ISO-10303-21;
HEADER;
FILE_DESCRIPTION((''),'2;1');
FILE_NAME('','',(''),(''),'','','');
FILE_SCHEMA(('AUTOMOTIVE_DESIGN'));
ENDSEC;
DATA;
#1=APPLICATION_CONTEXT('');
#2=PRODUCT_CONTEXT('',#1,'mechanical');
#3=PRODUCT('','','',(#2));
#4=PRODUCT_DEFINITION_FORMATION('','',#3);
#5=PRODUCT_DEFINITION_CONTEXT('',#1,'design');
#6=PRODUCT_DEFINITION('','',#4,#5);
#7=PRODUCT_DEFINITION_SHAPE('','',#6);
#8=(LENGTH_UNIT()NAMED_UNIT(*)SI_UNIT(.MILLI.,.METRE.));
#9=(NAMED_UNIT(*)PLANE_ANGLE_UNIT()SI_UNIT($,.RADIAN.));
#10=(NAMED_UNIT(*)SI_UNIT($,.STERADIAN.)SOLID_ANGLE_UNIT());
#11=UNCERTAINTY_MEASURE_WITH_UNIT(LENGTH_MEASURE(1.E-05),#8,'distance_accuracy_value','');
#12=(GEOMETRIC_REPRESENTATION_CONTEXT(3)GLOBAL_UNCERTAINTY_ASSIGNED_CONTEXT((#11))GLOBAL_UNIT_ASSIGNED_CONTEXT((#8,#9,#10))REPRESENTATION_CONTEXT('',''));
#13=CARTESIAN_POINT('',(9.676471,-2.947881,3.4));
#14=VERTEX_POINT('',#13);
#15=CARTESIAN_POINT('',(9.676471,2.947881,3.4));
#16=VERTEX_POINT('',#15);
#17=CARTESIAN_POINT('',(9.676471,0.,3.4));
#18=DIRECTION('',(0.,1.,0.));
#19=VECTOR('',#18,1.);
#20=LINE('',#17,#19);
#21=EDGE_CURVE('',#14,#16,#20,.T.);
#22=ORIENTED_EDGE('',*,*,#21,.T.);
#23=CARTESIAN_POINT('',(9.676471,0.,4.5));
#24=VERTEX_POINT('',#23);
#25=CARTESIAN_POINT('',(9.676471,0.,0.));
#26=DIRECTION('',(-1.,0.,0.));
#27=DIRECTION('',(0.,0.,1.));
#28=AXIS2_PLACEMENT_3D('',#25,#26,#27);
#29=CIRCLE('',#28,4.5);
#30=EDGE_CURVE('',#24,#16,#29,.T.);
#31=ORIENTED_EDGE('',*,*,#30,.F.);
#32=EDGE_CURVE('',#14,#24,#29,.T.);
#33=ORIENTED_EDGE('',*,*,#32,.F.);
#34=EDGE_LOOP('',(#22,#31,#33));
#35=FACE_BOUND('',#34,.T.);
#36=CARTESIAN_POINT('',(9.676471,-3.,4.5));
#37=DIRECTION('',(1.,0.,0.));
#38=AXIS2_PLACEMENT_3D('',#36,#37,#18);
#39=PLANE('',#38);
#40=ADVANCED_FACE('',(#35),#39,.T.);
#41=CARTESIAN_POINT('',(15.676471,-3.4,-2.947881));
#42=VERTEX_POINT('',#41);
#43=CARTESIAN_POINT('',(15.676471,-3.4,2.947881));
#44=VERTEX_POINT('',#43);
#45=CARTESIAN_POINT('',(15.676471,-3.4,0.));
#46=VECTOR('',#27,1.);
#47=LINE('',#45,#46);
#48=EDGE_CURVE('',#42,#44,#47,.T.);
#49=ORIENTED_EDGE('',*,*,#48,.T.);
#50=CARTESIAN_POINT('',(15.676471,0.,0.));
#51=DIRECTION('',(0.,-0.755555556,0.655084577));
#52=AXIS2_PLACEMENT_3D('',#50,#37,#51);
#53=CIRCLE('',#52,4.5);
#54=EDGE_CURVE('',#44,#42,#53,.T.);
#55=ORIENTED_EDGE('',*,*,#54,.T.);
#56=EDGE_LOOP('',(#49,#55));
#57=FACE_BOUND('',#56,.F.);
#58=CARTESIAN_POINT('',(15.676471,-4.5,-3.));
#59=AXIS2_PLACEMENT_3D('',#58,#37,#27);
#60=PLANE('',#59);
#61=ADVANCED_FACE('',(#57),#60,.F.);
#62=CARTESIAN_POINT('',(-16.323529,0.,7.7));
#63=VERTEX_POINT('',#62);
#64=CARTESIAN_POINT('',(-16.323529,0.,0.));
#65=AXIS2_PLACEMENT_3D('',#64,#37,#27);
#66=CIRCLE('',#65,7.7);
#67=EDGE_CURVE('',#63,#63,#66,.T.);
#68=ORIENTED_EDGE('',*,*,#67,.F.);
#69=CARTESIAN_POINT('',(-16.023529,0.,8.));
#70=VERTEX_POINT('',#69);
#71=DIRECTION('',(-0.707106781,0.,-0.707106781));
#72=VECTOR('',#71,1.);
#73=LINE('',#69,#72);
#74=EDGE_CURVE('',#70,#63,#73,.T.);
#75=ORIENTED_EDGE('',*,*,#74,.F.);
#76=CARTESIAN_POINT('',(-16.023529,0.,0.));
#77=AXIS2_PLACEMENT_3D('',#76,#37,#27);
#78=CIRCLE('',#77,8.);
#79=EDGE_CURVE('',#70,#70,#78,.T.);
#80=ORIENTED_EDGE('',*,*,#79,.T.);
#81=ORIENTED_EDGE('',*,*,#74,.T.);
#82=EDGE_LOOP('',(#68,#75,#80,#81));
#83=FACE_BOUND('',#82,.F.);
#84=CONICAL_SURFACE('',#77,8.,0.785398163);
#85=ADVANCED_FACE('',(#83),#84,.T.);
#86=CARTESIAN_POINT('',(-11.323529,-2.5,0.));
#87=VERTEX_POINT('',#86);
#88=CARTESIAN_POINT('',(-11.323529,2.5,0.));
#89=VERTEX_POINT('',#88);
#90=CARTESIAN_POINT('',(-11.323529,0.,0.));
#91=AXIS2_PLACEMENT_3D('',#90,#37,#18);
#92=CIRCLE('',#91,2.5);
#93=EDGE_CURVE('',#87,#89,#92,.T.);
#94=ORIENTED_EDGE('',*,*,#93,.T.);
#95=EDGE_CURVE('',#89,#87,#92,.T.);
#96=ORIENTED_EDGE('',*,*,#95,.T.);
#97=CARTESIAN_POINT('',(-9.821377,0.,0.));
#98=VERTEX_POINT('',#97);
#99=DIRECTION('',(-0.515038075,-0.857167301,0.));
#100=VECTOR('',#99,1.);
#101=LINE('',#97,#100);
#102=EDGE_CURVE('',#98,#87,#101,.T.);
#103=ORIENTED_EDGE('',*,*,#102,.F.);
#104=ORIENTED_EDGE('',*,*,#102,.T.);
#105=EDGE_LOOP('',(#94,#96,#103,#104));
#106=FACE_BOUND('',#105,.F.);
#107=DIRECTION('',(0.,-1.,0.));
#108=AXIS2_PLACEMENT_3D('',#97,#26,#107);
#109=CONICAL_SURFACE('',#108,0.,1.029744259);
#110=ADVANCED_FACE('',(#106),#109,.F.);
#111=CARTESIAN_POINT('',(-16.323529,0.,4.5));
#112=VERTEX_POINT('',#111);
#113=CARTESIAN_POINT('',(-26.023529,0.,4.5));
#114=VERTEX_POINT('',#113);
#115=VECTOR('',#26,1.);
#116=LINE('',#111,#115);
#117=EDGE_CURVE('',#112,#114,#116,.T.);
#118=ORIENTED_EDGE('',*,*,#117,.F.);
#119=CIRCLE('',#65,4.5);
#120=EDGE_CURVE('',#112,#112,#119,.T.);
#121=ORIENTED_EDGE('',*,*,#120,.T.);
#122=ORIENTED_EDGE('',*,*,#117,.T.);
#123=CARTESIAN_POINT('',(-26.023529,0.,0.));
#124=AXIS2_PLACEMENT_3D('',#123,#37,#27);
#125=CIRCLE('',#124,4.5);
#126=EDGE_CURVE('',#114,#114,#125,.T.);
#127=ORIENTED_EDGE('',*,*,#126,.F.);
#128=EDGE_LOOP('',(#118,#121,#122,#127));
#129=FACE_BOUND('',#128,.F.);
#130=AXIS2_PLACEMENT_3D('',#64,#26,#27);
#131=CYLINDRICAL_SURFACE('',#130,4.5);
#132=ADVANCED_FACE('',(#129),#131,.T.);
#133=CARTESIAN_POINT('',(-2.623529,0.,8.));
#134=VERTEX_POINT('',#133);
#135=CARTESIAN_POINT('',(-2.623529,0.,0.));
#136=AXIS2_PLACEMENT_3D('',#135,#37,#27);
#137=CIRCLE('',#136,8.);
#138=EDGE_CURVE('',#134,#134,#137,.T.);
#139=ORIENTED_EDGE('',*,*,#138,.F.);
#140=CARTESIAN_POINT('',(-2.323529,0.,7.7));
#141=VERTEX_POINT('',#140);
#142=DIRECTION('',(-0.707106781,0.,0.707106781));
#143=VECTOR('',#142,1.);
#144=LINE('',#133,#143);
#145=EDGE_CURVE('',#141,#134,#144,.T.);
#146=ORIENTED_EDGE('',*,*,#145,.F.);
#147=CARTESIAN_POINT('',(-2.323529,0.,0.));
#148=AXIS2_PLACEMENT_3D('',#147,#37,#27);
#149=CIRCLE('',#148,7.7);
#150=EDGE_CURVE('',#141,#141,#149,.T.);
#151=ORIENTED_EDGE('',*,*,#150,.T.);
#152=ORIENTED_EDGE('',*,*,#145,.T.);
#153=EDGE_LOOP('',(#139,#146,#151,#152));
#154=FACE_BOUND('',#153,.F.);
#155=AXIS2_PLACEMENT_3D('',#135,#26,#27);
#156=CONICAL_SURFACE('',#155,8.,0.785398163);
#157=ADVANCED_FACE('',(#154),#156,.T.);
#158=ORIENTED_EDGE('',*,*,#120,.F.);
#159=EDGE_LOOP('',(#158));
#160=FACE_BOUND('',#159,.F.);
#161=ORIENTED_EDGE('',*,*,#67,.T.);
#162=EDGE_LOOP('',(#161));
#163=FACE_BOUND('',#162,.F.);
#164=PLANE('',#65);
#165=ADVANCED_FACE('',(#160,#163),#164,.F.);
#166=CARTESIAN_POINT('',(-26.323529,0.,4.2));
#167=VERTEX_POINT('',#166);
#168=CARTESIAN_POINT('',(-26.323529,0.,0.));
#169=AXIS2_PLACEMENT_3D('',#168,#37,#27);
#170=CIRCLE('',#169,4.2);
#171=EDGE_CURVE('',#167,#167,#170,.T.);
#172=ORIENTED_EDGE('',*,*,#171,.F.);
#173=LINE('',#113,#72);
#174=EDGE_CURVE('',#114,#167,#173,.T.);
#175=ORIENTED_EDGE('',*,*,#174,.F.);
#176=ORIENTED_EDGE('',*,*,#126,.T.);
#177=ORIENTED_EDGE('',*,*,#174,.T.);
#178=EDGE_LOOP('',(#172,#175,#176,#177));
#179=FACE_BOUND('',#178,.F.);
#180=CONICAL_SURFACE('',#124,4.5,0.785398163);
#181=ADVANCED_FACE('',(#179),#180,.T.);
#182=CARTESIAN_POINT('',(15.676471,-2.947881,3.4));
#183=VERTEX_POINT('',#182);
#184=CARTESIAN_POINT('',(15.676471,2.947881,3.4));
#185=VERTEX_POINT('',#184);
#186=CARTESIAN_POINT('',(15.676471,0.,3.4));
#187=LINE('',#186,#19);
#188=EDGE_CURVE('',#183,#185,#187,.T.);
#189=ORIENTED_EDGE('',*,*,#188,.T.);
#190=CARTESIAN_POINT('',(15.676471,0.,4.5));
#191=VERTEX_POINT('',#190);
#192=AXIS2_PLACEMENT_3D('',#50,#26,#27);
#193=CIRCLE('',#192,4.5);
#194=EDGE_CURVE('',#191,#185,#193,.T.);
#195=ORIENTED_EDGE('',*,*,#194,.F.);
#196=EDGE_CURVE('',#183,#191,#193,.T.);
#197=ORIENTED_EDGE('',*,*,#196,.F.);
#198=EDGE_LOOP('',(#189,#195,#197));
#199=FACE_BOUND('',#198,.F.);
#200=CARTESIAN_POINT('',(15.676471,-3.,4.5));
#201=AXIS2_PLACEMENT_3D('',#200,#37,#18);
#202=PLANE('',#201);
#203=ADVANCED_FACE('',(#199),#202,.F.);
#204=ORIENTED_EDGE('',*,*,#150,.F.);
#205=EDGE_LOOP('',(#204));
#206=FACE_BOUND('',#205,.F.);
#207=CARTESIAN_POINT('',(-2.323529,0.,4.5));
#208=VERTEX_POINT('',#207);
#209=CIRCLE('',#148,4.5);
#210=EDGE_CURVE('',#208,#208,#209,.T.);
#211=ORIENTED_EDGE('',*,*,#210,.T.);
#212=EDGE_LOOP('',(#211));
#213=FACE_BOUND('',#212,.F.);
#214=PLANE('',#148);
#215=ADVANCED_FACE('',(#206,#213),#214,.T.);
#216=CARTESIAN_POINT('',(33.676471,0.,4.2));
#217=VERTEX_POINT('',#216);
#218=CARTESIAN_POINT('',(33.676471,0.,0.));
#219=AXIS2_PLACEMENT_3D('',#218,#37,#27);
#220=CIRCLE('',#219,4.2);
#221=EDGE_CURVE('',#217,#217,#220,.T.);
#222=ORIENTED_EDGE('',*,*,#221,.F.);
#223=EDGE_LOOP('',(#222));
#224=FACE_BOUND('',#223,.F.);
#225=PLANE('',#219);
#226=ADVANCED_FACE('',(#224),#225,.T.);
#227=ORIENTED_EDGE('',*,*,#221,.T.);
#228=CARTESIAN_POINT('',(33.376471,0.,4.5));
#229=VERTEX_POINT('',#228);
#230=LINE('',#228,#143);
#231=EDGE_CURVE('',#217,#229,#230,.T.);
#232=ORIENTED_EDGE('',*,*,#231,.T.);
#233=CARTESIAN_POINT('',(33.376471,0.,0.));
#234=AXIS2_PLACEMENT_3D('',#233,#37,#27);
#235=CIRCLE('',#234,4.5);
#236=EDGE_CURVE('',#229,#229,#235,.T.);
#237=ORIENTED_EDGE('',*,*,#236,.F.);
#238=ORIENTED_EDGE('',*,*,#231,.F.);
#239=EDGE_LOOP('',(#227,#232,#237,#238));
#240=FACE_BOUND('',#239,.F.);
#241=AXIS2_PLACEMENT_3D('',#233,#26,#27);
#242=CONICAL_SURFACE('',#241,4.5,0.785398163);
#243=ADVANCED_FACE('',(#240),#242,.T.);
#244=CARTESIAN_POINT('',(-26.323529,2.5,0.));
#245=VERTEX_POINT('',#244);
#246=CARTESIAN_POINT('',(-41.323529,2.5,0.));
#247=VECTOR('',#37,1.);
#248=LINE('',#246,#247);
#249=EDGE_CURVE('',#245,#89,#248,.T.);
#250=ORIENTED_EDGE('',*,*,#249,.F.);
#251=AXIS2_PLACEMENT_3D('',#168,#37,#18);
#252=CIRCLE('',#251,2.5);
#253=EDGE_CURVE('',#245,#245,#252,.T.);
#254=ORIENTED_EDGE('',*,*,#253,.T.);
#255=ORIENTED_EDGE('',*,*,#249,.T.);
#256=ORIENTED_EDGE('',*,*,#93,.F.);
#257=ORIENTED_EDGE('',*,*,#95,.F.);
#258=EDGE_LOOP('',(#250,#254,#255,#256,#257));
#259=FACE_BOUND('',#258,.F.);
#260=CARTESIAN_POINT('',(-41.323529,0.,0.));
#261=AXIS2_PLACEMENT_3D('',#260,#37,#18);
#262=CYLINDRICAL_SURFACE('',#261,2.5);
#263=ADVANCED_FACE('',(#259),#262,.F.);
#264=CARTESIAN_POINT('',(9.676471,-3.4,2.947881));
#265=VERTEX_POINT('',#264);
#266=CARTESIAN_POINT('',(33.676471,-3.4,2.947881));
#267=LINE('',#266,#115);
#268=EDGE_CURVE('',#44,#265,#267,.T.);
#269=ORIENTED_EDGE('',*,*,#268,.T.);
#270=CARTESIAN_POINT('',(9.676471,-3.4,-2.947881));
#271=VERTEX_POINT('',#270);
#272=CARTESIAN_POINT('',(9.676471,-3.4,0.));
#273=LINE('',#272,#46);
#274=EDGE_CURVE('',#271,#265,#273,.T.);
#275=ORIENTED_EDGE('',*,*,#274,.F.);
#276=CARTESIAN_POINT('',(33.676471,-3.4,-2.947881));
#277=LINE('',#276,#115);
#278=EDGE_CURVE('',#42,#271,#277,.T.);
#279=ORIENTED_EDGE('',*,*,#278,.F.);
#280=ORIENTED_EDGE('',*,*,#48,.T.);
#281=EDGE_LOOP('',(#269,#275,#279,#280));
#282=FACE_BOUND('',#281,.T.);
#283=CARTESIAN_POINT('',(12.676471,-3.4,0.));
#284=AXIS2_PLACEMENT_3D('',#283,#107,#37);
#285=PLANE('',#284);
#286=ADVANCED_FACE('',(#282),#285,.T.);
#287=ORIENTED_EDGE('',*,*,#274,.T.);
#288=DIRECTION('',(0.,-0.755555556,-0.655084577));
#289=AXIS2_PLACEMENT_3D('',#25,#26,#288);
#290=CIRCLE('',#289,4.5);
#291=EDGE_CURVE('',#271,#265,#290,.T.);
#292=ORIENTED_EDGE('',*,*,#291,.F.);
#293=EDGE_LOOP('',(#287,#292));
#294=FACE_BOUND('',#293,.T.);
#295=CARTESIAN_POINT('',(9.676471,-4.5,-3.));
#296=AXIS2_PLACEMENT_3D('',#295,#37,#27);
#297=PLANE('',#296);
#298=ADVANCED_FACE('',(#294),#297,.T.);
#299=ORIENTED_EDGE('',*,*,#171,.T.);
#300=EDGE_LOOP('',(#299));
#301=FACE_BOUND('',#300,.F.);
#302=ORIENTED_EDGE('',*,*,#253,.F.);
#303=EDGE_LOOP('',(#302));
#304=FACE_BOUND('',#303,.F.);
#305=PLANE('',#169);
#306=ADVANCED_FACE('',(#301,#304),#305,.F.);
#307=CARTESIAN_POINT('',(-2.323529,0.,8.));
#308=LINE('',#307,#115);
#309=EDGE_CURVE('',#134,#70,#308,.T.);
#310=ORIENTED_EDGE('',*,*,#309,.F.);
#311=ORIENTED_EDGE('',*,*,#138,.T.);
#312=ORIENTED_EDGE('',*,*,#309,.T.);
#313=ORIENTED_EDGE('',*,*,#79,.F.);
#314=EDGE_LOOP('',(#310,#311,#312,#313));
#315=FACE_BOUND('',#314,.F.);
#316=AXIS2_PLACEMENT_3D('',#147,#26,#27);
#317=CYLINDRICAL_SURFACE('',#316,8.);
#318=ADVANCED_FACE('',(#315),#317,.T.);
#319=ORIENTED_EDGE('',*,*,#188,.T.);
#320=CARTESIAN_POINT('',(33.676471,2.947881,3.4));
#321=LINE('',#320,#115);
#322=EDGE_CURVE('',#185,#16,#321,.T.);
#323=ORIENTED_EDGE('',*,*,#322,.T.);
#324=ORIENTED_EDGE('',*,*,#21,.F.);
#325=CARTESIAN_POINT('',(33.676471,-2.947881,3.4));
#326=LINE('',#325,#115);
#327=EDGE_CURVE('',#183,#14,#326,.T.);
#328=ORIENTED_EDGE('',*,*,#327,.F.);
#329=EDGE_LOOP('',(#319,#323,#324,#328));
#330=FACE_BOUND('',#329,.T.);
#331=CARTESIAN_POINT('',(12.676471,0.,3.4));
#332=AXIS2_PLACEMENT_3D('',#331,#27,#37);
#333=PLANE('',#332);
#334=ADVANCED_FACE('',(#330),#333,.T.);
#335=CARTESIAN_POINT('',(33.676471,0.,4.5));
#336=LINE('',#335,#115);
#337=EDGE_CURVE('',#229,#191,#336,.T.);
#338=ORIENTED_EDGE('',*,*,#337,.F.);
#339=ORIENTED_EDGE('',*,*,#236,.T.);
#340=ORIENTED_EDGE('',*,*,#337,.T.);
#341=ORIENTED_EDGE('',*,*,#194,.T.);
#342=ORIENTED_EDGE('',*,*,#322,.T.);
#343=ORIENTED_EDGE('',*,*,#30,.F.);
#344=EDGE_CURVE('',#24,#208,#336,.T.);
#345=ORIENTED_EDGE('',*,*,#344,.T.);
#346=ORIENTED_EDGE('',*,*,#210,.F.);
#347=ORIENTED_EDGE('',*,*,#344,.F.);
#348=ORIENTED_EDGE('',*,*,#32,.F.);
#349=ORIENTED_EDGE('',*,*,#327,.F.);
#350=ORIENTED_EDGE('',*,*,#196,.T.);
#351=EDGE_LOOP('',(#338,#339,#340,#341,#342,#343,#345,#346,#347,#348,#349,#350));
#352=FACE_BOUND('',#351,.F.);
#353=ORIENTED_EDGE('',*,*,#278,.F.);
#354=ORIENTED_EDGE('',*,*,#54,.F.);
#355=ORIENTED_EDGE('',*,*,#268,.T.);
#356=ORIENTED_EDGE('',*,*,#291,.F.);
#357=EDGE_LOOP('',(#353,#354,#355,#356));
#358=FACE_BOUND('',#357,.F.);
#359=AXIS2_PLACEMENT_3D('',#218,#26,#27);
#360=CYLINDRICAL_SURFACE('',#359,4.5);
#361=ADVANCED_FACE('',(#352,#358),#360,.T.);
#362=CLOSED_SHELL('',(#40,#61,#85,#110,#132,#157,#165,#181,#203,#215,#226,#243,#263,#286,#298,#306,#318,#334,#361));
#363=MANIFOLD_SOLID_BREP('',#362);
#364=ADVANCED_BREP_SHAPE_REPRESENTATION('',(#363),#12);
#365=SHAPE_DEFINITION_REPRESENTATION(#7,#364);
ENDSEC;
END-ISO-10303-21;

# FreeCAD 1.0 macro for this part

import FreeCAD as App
import Part
import Sketcher

V = App.Vector
Q = App.Units.Quantity


def edges_at(feature, points):
    """Names of the edges that pass closest to the given points."""
    edges = feature.Shape.Edges
    near = lambda p: min(range(len(edges)), key=lambda i: edges[i].distToShape(Part.Vertex(*p))[0])
    return sorted({f"Edge{near(p) + 1}" for p in points})

doc = App.newDocument("Part")
params = doc.addObject("Spreadsheet::Sheet", "Params")
for row, (alias, value) in enumerate([
    ("sketch1_width", "60 mm"),
    ("sketch1_width2", "36 mm"),
    ("sketch1_width3", "14 mm"),
    ("sketch1_height", "4.5 mm"),
    ("sketch1_height2", "3.5 mm"),
    ("revolution_angle", "360 deg"),
    ("chamfer_size", "0.3 mm"),
    ("chamfer2_size", "0.3 mm"),
    ("chamfer3_size", "0.3 mm"),
    ("sketch2_width", "6 mm"),
    ("pocket1_length", "1.1 mm"),
    ("sketch3_width", "6 mm"),
    ("pocket2_length", "1.1 mm"),
    ("sketch4_diameter", "5 mm"),
    ("hole_diameter", "5 mm"),
    ("hole_depth", "15 mm"),
], start=1):
    params.set(f"A{row}", alias)
    params.set(f"B{row}", "=" + value)
    params.setAlias(f"B{row}", alias)

body = doc.addObject("PartDesign::Body", "Body")

sketch1 = body.newObject("Sketcher::SketchObject", "Sketch")
sketch1.AttachmentSupport = (doc.getObject("XZ_Plane"), [""])
sketch1.MapMode = "FlatFace"
sketch1.addGeometry(Part.LineSegment(V(-26.3, 4.5, 0), V(-26.3, 0, 0)), False)
sketch1.addGeometry(Part.LineSegment(V(-26.3, 0, 0), V(33.7, 0, 0)), False)
sketch1.addGeometry(Part.LineSegment(V(33.7, 0, 0), V(33.7, 4.5, 0)), False)
sketch1.addGeometry(Part.LineSegment(V(33.7, 4.5, 0), V(-2.3, 4.5, 0)), False)
sketch1.addGeometry(Part.LineSegment(V(-2.3, 4.5, 0), V(-2.3, 8, 0)), False)
sketch1.addGeometry(Part.LineSegment(V(-2.3, 8, 0), V(-16.3, 8, 0)), False)
sketch1.addGeometry(Part.LineSegment(V(-16.3, 8, 0), V(-16.3, 4.5, 0)), False)
sketch1.addGeometry(Part.LineSegment(V(-16.3, 4.5, 0), V(-26.3, 4.5, 0)), False)
sketch1.addConstraint(Sketcher.Constraint("Coincident", 0, 2, 1, 1))
sketch1.addConstraint(Sketcher.Constraint("Coincident", 1, 2, 2, 1))
sketch1.addConstraint(Sketcher.Constraint("Coincident", 2, 2, 3, 1))
sketch1.addConstraint(Sketcher.Constraint("Coincident", 3, 2, 4, 1))
sketch1.addConstraint(Sketcher.Constraint("Coincident", 4, 2, 5, 1))
sketch1.addConstraint(Sketcher.Constraint("Coincident", 5, 2, 6, 1))
sketch1.addConstraint(Sketcher.Constraint("Coincident", 6, 2, 7, 1))
sketch1.addConstraint(Sketcher.Constraint("Coincident", 7, 2, 0, 1))
sketch1.addConstraint(Sketcher.Constraint("Vertical", 0))
sketch1.addConstraint(Sketcher.Constraint("Horizontal", 1))
sketch1.addConstraint(Sketcher.Constraint("Vertical", 2))
sketch1.addConstraint(Sketcher.Constraint("Horizontal", 3))
sketch1.addConstraint(Sketcher.Constraint("Vertical", 4))
sketch1.addConstraint(Sketcher.Constraint("Horizontal", 5))
sketch1.addConstraint(Sketcher.Constraint("Vertical", 6))
sketch1.addConstraint(Sketcher.Constraint("Horizontal", 7))
sketch1.addConstraint(Sketcher.Constraint("PointOnObject", 0, 2, -1))
sketch1.addConstraint(Sketcher.Constraint("Horizontal", 3, 2, 6, 2))
sketch1.addConstraint(Sketcher.Constraint("DistanceX", 1, 1, 1, 2, Q("60 mm")))
sketch1.addConstraint(Sketcher.Constraint("DistanceX", 3, 2, 3, 1, Q("36 mm")))
sketch1.addConstraint(Sketcher.Constraint("DistanceX", 5, 2, 5, 1, Q("14 mm")))
sketch1.addConstraint(Sketcher.Constraint("DistanceY", 0, 2, 0, 1, Q("4.5 mm")))
sketch1.addConstraint(Sketcher.Constraint("DistanceY", 4, 1, 4, 2, Q("3.5 mm")))
sketch1.addConstraint(Sketcher.Constraint("DistanceX", 0, 2, -1, 1, Q("26.323529 mm")))
sketch1.setExpression("Constraints[18]", "Params.sketch1_width")
sketch1.setExpression("Constraints[19]", "Params.sketch1_width2")
sketch1.setExpression("Constraints[20]", "Params.sketch1_width3")
sketch1.setExpression("Constraints[21]", "Params.sketch1_height")
sketch1.setExpression("Constraints[22]", "Params.sketch1_height2")
revolution = body.newObject("PartDesign::Revolution", "Revolution")
revolution.Profile = sketch1
revolution.ReferenceAxis = (sketch1, ["H_Axis"])
revolution.setExpression("Angle", "Params.revolution_angle")
doc.recompute()

chamfer = body.newObject("PartDesign::Chamfer", "Chamfer")
chamfer.Base = (revolution, edges_at(revolution, [(33.676, 0, -4.5)]))
chamfer.setExpression("Size", "Params.chamfer_size")
doc.recompute()

chamfer2 = body.newObject("PartDesign::Chamfer", "Chamfer001")
chamfer2.Base = (chamfer, edges_at(chamfer, [(-2.324, 0, -8), (-16.324, 0, -8), (-9.324, 0, 8)]))
chamfer2.setExpression("Size", "Params.chamfer2_size")
doc.recompute()

chamfer3 = body.newObject("PartDesign::Chamfer", "Chamfer002")
chamfer3.Base = (chamfer2, edges_at(chamfer2, [(-26.324, 0, -4.5)]))
chamfer3.setExpression("Size", "Params.chamfer3_size")

sketch2 = body.newObject("Sketcher::SketchObject", "Sketch001")
sketch2.AttachmentSupport = (doc.getObject("XZ_Plane"), [""])
sketch2.MapMode = "FlatFace"
sketch2.AttachmentOffset = App.Placement(V(0, 0, 4.5), App.Rotation())
sketch2.addGeometry(Part.LineSegment(V(10, 3, 0), V(10, -3, 0)), False)
sketch2.addGeometry(Part.LineSegment(V(10, -3, 0), V(16, -3, 0)), False)
sketch2.addGeometry(Part.LineSegment(V(16, -3, 0), V(16, 3, 0)), False)
sketch2.addGeometry(Part.LineSegment(V(16, 3, 0), V(10, 3, 0)), False)
sketch2.addConstraint(Sketcher.Constraint("Coincident", 0, 2, 1, 1))
sketch2.addConstraint(Sketcher.Constraint("Coincident", 1, 2, 2, 1))
sketch2.addConstraint(Sketcher.Constraint("Coincident", 2, 2, 3, 1))
sketch2.addConstraint(Sketcher.Constraint("Coincident", 3, 2, 0, 1))
sketch2.addConstraint(Sketcher.Constraint("Vertical", 0))
sketch2.addConstraint(Sketcher.Constraint("Horizontal", 1))
sketch2.addConstraint(Sketcher.Constraint("Vertical", 2))
sketch2.addConstraint(Sketcher.Constraint("Horizontal", 3))
sketch2.addConstraint(Sketcher.Constraint("Equal", 3, 0))
sketch2.addConstraint(Sketcher.Constraint("DistanceX", 1, 1, 1, 2, Q("6 mm")))
sketch2.addConstraint(Sketcher.Constraint("DistanceY", 0, 2, -1, 1, Q("3 mm")))
sketch2.addConstraint(Sketcher.Constraint("DistanceX", -1, 1, 0, 2, Q("9.676471 mm")))
sketch2.setExpression("Constraints[9]", "Params.sketch2_width")
pocket1 = body.newObject("PartDesign::Pocket", "Pocket")
pocket1.Profile = sketch2
pocket1.setExpression("Length", "Params.pocket1_length")

sketch3 = body.newObject("Sketcher::SketchObject", "Sketch002")
sketch3.AttachmentSupport = (doc.getObject("XY_Plane"), [""])
sketch3.MapMode = "FlatFace"
sketch3.AttachmentOffset = App.Placement(V(0, 0, 4.5), App.Rotation())
sketch3.addGeometry(Part.LineSegment(V(10, 3, 0), V(10, -3, 0)), False)
sketch3.addGeometry(Part.LineSegment(V(10, -3, 0), V(16, -3, 0)), False)
sketch3.addGeometry(Part.LineSegment(V(16, -3, 0), V(16, 3, 0)), False)
sketch3.addGeometry(Part.LineSegment(V(16, 3, 0), V(10, 3, 0)), False)
sketch3.addConstraint(Sketcher.Constraint("Coincident", 0, 2, 1, 1))
sketch3.addConstraint(Sketcher.Constraint("Coincident", 1, 2, 2, 1))
sketch3.addConstraint(Sketcher.Constraint("Coincident", 2, 2, 3, 1))
sketch3.addConstraint(Sketcher.Constraint("Coincident", 3, 2, 0, 1))
sketch3.addConstraint(Sketcher.Constraint("Vertical", 0))
sketch3.addConstraint(Sketcher.Constraint("Horizontal", 1))
sketch3.addConstraint(Sketcher.Constraint("Vertical", 2))
sketch3.addConstraint(Sketcher.Constraint("Horizontal", 3))
sketch3.addConstraint(Sketcher.Constraint("Equal", 3, 0))
sketch3.addConstraint(Sketcher.Constraint("DistanceX", 1, 1, 1, 2, Q("6 mm")))
sketch3.addConstraint(Sketcher.Constraint("DistanceY", 0, 2, -1, 1, Q("3 mm")))
sketch3.addConstraint(Sketcher.Constraint("DistanceX", -1, 1, 0, 2, Q("9.676471 mm")))
sketch3.setExpression("Constraints[9]", "Params.sketch3_width")
pocket2 = body.newObject("PartDesign::Pocket", "Pocket001")
pocket2.Profile = sketch3
pocket2.setExpression("Length", "Params.pocket2_length")

sketch4 = body.newObject("Sketcher::SketchObject", "Sketch003")
sketch4.AttachmentSupport = (doc.getObject("YZ_Plane"), [""])
sketch4.MapMode = "FlatFace"
sketch4.AttachmentOffset = App.Placement(V(0, 0, -26.323529), App.Rotation())
sketch4.addGeometry(Part.Circle(V(0, 0, 0), V(0, 0, 1), 2.5), False)
sketch4.addConstraint(Sketcher.Constraint("Coincident", 0, 3, -1, 1))
sketch4.addConstraint(Sketcher.Constraint("Diameter", 0, Q("5 mm")))
sketch4.setExpression("Constraints[1]", "Params.sketch4_diameter")
doc.recompute()
hole = body.newObject("PartDesign::Hole", "Hole")
hole.Profile = sketch4
hole.ThreadType = "None"
hole.setExpression("Diameter", "Params.hole_diameter")
hole.DepthType = "Dimension"
hole.setExpression("Depth", "Params.hole_depth")
hole.DrillPoint = "Angled"
hole.DrillPointAngle = 118
hole.Reversed = True

doc.recompute()
